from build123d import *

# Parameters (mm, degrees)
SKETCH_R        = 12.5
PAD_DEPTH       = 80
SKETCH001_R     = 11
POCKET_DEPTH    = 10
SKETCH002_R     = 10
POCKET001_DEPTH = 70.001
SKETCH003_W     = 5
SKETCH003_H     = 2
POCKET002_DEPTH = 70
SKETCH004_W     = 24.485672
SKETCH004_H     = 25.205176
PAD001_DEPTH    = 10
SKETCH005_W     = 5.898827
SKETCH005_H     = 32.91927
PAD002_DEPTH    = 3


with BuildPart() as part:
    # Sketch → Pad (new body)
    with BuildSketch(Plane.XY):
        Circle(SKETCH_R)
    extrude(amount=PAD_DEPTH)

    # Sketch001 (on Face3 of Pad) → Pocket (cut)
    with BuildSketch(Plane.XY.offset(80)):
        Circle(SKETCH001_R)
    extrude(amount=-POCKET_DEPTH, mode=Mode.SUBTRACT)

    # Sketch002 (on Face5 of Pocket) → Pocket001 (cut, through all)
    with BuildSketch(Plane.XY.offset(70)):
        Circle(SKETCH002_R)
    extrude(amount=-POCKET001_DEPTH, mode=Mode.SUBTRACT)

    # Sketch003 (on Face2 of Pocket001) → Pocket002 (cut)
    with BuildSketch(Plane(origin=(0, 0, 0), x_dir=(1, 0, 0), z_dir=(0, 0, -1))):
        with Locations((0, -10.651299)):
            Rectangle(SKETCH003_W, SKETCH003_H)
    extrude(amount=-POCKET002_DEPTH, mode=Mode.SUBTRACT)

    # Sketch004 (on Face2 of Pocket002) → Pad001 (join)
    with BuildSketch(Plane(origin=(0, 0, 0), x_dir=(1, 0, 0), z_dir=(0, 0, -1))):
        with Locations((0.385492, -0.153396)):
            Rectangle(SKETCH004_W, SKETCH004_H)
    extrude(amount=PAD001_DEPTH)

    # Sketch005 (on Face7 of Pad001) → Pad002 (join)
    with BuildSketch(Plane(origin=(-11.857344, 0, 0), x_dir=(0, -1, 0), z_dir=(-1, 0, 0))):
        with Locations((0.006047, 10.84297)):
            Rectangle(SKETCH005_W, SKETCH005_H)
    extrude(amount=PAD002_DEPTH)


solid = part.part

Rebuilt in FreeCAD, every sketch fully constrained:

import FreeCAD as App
import Part
import Sketcher
Q = App.Units.Quantity


def add_polygon(sketch, points):
    """Adds a closed chain of lines whose ends are joined by coincident constraints."""
    first, n = sketch.GeometryCount, len(points)
    for a, b in zip(points, points[1:] + points[:1]):
        sketch.addGeometry(Part.LineSegment(App.Vector(*a, 0), App.Vector(*b, 0)), False)
    for i in range(n):
        sketch.addConstraint(Sketcher.Constraint("Coincident", first + i, 2, first + (i + 1) % n, 1))

doc = App.newDocument("Part")
body = doc.addObject("PartDesign::Body", "Body")

sketch1 = body.newObject("Sketcher::SketchObject", "Sketch")
sketch1.AttachmentSupport = (doc.getObject("XY_Plane"), [""])
sketch1.MapMode = "FlatFace"
sketch1.addGeometry(Part.Circle(App.Vector(0, 0, 0), App.Vector(0, 0, 1), 12.5), False)
sketch1.addConstraint(Sketcher.Constraint("Coincident", 0, 3, -1, 1))
sketch1.addConstraint(Sketcher.Constraint("Diameter", 0, Q("25 mm")))
pad1 = body.newObject("PartDesign::Pad", "Pad")
pad1.Profile = sketch1
pad1.Length = 80

sketch2 = body.newObject("Sketcher::SketchObject", "Sketch001")
sketch2.AttachmentSupport = (doc.getObject("XY_Plane"), [""])
sketch2.MapMode = "FlatFace"
sketch2.AttachmentOffset = App.Placement(App.Vector(0, 0, 80), App.Rotation())
sketch2.addGeometry(Part.Circle(App.Vector(0, 0, 0), App.Vector(0, 0, 1), 11), False)
sketch2.addConstraint(Sketcher.Constraint("Coincident", 0, 3, -1, 1))
sketch2.addConstraint(Sketcher.Constraint("Diameter", 0, Q("22 mm")))
pocket1 = body.newObject("PartDesign::Pocket", "Pocket")
pocket1.Profile = sketch2
pocket1.Length = 10

sketch3 = body.newObject("Sketcher::SketchObject", "Sketch002")
sketch3.AttachmentSupport = (doc.getObject("XY_Plane"), [""])
sketch3.MapMode = "FlatFace"
sketch3.AttachmentOffset = App.Placement(App.Vector(0, 0, 70), App.Rotation())
sketch3.addGeometry(Part.Circle(App.Vector(0, 0, 0), App.Vector(0, 0, 1), 10), False)
sketch3.addConstraint(Sketcher.Constraint("Coincident", 0, 3, -1, 1))
sketch3.addConstraint(Sketcher.Constraint("Diameter", 0, Q("20 mm")))
pocket2 = body.newObject("PartDesign::Pocket", "Pocket001")
pocket2.Profile = sketch3
pocket2.Type = "ThroughAll"

sketch4 = body.newObject("Sketcher::SketchObject", "Sketch003")
sketch4.AttachmentSupport = (doc.getObject("XY_Plane"), [""])
sketch4.MapMode = "FlatFace"
add_polygon(sketch4, [(-2.5, 9.651299), (-2.5, 11.651299), (2.5, 11.651299), (2.5, 9.651299)])
sketch4.addConstraint(Sketcher.Constraint("Vertical", 0))
sketch4.addConstraint(Sketcher.Constraint("Horizontal", 1))
sketch4.addConstraint(Sketcher.Constraint("Vertical", 2))
sketch4.addConstraint(Sketcher.Constraint("Horizontal", 3))
sketch4.addConstraint(Sketcher.Constraint("DistanceX", 1, 1, 1, 2, Q("5 mm")))
sketch4.addConstraint(Sketcher.Constraint("DistanceY", 0, 1, 0, 2, Q("2 mm")))
sketch4.addConstraint(Sketcher.Constraint("DistanceX", 0, 2, -1, 1, Q("2.5 mm")))
sketch4.addConstraint(Sketcher.Constraint("DistanceY", -1, 1, 0, 2, Q("11.651299 mm")))
pocket3 = body.newObject("PartDesign::Pocket", "Pocket002")
pocket3.Profile = sketch4
pocket3.Length = 70
pocket3.Reversed = True

sketch5 = body.newObject("Sketcher::SketchObject", "Sketch004")
sketch5.AttachmentSupport = (doc.getObject("XY_Plane"), [""])
sketch5.MapMode = "FlatFace"
add_polygon(sketch5, [(-11.857344, -12.449192), (-11.857344, 12.755984), (12.628328, 12.755984), (12.628328, -12.449192)])
sketch5.addConstraint(Sketcher.Constraint("Vertical", 0))
sketch5.addConstraint(Sketcher.Constraint("Horizontal", 1))
sketch5.addConstraint(Sketcher.Constraint("Vertical", 2))
sketch5.addConstraint(Sketcher.Constraint("Horizontal", 3))
sketch5.addConstraint(Sketcher.Constraint("DistanceX", 1, 1, 1, 2, Q("24.485672 mm")))
sketch5.addConstraint(Sketcher.Constraint("DistanceY", 0, 1, 0, 2, Q("25.205176 mm")))
sketch5.addConstraint(Sketcher.Constraint("DistanceX", 0, 2, -1, 1, Q("11.857344 mm")))
sketch5.addConstraint(Sketcher.Constraint("DistanceY", -1, 1, 0, 2, Q("12.755984 mm")))
pad2 = body.newObject("PartDesign::Pad", "Pad001")
pad2.Profile = sketch5
pad2.Length = 10
pad2.Reversed = True

sketch6 = body.newObject("Sketcher::SketchObject", "Sketch005")
sketch6.AttachmentSupport = (doc.getObject("YZ_Plane"), [""])
sketch6.MapMode = "FlatFace"
sketch6.AttachmentOffset = App.Placement(App.Vector(0, 0, -11.857344), App.Rotation())
add_polygon(sketch6, [(2.943367, 27.302605), (2.943367, -5.616665), (-2.955461, -5.616665), (-2.955461, 27.302605)])
sketch6.addConstraint(Sketcher.Constraint("Vertical", 0))
sketch6.addConstraint(Sketcher.Constraint("Horizontal", 1))
sketch6.addConstraint(Sketcher.Constraint("Vertical", 2))
sketch6.addConstraint(Sketcher.Constraint("Horizontal", 3))
sketch6.addConstraint(Sketcher.Constraint("DistanceY", 0, 2, 0, 1, Q("32.91927 mm")))
sketch6.addConstraint(Sketcher.Constraint("DistanceX", 1, 2, 1, 1, Q("5.898827 mm")))
sketch6.addConstraint(Sketcher.Constraint("DistanceX", 1, 2, -1, 1, Q("2.955461 mm")))
sketch6.addConstraint(Sketcher.Constraint("DistanceY", 0, 2, -1, 1, Q("5.616665 mm")))
pad3 = body.newObject("PartDesign::Pad", "Pad002")
pad3.Profile = sketch6
pad3.Length = 3
pad3.Reversed = True

doc.recompute()
